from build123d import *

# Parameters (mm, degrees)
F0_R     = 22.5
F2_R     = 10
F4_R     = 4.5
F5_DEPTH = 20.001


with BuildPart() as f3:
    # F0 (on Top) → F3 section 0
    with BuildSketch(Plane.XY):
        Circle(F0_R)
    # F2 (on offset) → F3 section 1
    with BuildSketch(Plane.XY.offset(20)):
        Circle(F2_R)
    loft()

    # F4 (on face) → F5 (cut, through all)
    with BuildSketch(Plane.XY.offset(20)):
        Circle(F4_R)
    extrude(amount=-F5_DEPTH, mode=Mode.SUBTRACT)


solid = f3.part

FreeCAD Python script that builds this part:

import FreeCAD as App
import Part
import Sketcher
Q = App.Units.Quantity

doc = App.newDocument("Part")
body = doc.addObject("PartDesign::Body", "Body")

# Sketch on XY plane
sketch1 = doc.addObject("Sketcher::SketchObject", "Sketch")
body.addObject(sketch1)
sketch1.AttachmentSupport = (doc.XY_Plane, [""])
sketch1.MapMode = "FlatFace"
sketch1.addGeometry(Part.Circle(App.Vector(0, 0, 0), App.Vector(0, 0, 1), 22.5), False)
sketch1.addConstraint(Sketcher.Constraint("Coincident", 0, 3, -1, 1))
sketch1.addConstraint(Sketcher.Constraint("Diameter", 0, Q("45 mm")))

# Sketch on XY plane
sketch2 = doc.addObject("Sketcher::SketchObject", "Sketch001")
body.addObject(sketch2)
sketch2.AttachmentSupport = (doc.XY_Plane, [""])
sketch2.MapMode = "FlatFace"
sketch2.AttachmentOffset = App.Placement(App.Vector(0, 0, 20), App.Rotation())
sketch2.addGeometry(Part.Circle(App.Vector(0, 0, 0), App.Vector(0, 0, 1), 10), False)
sketch2.addConstraint(Sketcher.Constraint("Coincident", 0, 3, -1, 1))
sketch2.addConstraint(Sketcher.Constraint("Diameter", 0, Q("20 mm")))

additiveloft = doc.addObject("PartDesign::AdditiveLoft", "AdditiveLoft")
body.addObject(additiveloft)
additiveloft.Profile = sketch1
additiveloft.Sections = [sketch2]

# Sketch on XY plane
sketch3 = doc.addObject("Sketcher::SketchObject", "Sketch002")
body.addObject(sketch3)
sketch3.AttachmentSupport = (doc.XY_Plane, [""])
sketch3.MapMode = "FlatFace"
sketch3.AttachmentOffset = App.Placement(App.Vector(0, 0, 20), App.Rotation())
sketch3.addGeometry(Part.Circle(App.Vector(0, 0, 0), App.Vector(0, 0, 1), 4.5), False)
sketch3.addConstraint(Sketcher.Constraint("Coincident", 0, 3, -1, 1))
sketch3.addConstraint(Sketcher.Constraint("Diameter", 0, Q("9 mm")))
pocket1 = doc.addObject("PartDesign::Pocket", "Pocket")
body.addObject(pocket1)
pocket1.Profile = sketch3
pocket1.Type = "ThroughAll"

doc.recompute()
